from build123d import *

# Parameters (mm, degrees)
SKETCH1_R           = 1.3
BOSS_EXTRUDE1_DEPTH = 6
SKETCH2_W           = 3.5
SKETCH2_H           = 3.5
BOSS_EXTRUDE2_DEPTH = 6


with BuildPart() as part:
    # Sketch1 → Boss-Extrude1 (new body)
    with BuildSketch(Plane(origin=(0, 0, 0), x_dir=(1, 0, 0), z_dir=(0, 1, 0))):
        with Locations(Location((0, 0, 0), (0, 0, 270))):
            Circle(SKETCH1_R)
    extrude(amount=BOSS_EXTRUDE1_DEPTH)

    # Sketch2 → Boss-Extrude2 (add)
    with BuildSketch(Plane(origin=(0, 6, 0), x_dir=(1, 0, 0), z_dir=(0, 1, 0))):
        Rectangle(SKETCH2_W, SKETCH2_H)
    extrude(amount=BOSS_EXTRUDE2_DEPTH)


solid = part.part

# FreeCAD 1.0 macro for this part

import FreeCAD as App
import Part
import Sketcher

V = App.Vector
Q = App.Units.Quantity


def add_polygon(sketch, points):
    """Adds a closed chain of lines whose ends are joined by coincident constraints."""
    first, n = sketch.GeometryCount, len(points)
    for a, b in zip(points, points[1:] + points[:1]):
        sketch.addGeometry(Part.LineSegment(App.Vector(*a, 0), App.Vector(*b, 0)), False)
    for i in range(n):
        sketch.addConstraint(Sketcher.Constraint("Coincident", first + i, 2, first + (i + 1) % n, 1))

doc = App.newDocument("Part")
body = doc.addObject("PartDesign::Body", "Body")

# Sketch on XZ plane
sketch1 = body.newObject("Sketcher::SketchObject", "Sketch")
sketch1.AttachmentSupport = (doc.getObject("XZ_Plane"), [""])
sketch1.MapMode = "FlatFace"
sketch1.addGeometry(Part.Circle(V(0, 0, 0), V(0, 0, 1), 1.3), False)
sketch1.addConstraint(Sketcher.Constraint("Coincident", 0, 3, -1, 1))
sketch1.addConstraint(Sketcher.Constraint("Diameter", 0, Q("2.6 mm")))
pad1 = body.newObject("PartDesign::Pad", "Pad")
pad1.Profile = sketch1
pad1.Length = 6
pad1.Reversed = True

# Sketch on XZ plane
sketch2 = body.newObject("Sketcher::SketchObject", "Sketch001")
sketch2.AttachmentSupport = (doc.getObject("XZ_Plane"), [""])
sketch2.MapMode = "FlatFace"
sketch2.AttachmentOffset = App.Placement(V(0, 0, -6), App.Rotation())
add_polygon(sketch2, [(-1.8, -1.8), (-1.8, 1.8), (1.8, 1.8), (1.8, -1.8)])  # lines 0-3
sketch2.addConstraint(Sketcher.Constraint("Vertical", 0))
sketch2.addConstraint(Sketcher.Constraint("Horizontal", 1))
sketch2.addConstraint(Sketcher.Constraint("Vertical", 2))
sketch2.addConstraint(Sketcher.Constraint("Horizontal", 3))
sketch2.addConstraint(Sketcher.Constraint("Symmetric", 0, 2, 2, 2, -1, 1))
sketch2.addConstraint(Sketcher.Constraint("Equal", 3, 0))
sketch2.addConstraint(Sketcher.Constraint("DistanceX", 1, 1, 1, 2, Q("3.5 mm")))
pad2 = body.newObject("PartDesign::Pad", "Pad001")
pad2.Profile = sketch2
pad2.Length = 6
pad2.Reversed = True

doc.recompute()
